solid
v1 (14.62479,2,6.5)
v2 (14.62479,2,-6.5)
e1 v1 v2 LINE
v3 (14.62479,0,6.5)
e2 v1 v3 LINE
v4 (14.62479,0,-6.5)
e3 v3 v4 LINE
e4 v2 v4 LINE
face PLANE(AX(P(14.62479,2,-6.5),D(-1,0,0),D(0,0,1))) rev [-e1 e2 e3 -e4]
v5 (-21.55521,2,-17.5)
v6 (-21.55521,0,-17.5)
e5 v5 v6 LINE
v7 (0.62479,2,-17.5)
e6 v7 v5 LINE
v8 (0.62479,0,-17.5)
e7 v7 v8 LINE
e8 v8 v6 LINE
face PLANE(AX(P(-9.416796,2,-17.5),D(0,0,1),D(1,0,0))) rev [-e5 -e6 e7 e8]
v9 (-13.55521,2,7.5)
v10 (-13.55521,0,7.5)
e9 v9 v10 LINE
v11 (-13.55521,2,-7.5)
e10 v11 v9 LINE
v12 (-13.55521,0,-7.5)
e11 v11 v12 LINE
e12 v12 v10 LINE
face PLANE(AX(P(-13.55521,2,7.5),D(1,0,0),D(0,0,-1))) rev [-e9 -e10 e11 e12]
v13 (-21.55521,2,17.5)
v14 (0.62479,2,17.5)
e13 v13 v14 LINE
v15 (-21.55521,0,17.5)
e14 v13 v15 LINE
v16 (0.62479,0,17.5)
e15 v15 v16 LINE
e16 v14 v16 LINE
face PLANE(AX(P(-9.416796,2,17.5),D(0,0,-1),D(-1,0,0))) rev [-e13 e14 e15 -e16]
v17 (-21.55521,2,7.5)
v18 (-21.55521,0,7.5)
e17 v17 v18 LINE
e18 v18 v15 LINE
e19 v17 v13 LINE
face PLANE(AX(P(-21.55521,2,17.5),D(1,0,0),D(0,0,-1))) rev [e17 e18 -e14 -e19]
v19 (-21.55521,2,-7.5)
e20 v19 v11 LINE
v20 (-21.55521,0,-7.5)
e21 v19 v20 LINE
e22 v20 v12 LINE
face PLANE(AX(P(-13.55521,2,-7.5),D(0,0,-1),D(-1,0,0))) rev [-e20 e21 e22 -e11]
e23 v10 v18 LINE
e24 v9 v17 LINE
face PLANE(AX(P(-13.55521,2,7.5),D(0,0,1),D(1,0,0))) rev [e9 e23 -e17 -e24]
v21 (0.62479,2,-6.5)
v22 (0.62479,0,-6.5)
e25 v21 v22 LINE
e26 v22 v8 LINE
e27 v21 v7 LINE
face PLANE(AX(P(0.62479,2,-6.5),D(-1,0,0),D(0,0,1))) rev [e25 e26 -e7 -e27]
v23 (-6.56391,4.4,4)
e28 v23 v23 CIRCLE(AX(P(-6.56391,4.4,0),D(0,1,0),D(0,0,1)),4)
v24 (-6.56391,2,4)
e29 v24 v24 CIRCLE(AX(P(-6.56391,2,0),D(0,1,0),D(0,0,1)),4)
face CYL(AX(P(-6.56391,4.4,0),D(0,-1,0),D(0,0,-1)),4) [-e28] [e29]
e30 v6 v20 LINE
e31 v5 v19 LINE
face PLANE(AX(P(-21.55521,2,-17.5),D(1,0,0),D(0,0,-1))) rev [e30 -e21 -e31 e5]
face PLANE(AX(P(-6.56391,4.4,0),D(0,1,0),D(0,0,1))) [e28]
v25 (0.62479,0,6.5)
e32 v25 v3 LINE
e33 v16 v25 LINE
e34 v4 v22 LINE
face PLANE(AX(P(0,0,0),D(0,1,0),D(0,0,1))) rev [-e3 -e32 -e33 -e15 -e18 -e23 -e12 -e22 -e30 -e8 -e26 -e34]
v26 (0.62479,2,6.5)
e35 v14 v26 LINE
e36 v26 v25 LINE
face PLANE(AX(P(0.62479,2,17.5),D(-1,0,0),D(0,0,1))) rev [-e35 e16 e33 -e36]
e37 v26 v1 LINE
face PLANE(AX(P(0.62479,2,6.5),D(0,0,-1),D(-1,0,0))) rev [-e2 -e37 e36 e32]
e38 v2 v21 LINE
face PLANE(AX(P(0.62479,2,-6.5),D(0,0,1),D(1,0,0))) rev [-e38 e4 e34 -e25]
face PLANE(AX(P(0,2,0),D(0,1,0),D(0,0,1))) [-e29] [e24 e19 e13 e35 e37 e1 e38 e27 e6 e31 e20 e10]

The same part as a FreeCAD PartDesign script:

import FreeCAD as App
import Part
import Sketcher
from FreeCAD import Vector
Q = App.Units.Quantity

doc = App.newDocument("Part")
body = doc.addObject("PartDesign::Body", "Body")

# Sketch on XZ plane
sketch1 = body.newObject("Sketcher::SketchObject", "Sketch")
sketch1.AttachmentSupport = (doc.getObject("XZ_Plane"), [""])
sketch1.MapMode = "FlatFace"
sketch1.addGeometry([
    Part.LineSegment(Vector(1, -6, 0), Vector(1, -18, 0)),  # 0
    Part.LineSegment(Vector(1, -18, 0), Vector(-22, -18, 0)),  # 1
    Part.LineSegment(Vector(-22, -18, 0), Vector(-22, -8, 0)),  # 2
    Part.LineSegment(Vector(-22, -8, 0), Vector(-14, -8, 0)),  # 3
    Part.LineSegment(Vector(-14, -8, 0), Vector(-14, 8, 0)),  # 4
    Part.LineSegment(Vector(-14, 8, 0), Vector(-22, 8, 0)),  # 5
    Part.LineSegment(Vector(-22, 8, 0), Vector(-22, 18, 0)),  # 6
    Part.LineSegment(Vector(-22, 18, 0), Vector(1, 18, 0)),  # 7
    Part.LineSegment(Vector(1, 18, 0), Vector(1, 6, 0)),  # 8
    Part.LineSegment(Vector(1, 6, 0), Vector(15, 6, 0)),  # 9
    Part.LineSegment(Vector(15, 6, 0), Vector(15, -6, 0)),  # 10
    Part.LineSegment(Vector(15, -6, 0), Vector(1, -6, 0)),  # 11
], False)
sketch1.addConstraint([
    Sketcher.Constraint("Coincident", 0, 2, 1, 1),
    Sketcher.Constraint("Coincident", 1, 2, 2, 1),
    Sketcher.Constraint("Coincident", 2, 2, 3, 1),
    Sketcher.Constraint("Coincident", 3, 2, 4, 1),
    Sketcher.Constraint("Coincident", 4, 2, 5, 1),
    Sketcher.Constraint("Coincident", 5, 2, 6, 1),
    Sketcher.Constraint("Coincident", 6, 2, 7, 1),
    Sketcher.Constraint("Coincident", 7, 2, 8, 1),
    Sketcher.Constraint("Coincident", 8, 2, 9, 1),
    Sketcher.Constraint("Coincident", 9, 2, 10, 1),
    Sketcher.Constraint("Coincident", 10, 2, 11, 1),
    Sketcher.Constraint("Coincident", 11, 2, 0, 1),
    Sketcher.Constraint("Vertical", 0),
    Sketcher.Constraint("Horizontal", 1),
    Sketcher.Constraint("Vertical", 2),
    Sketcher.Constraint("Horizontal", 3),
    Sketcher.Constraint("Vertical", 4),
    Sketcher.Constraint("Horizontal", 5),
    Sketcher.Constraint("Vertical", 6),
    Sketcher.Constraint("Horizontal", 7),
    Sketcher.Constraint("Vertical", 8),
    Sketcher.Constraint("Horizontal", 9),
    Sketcher.Constraint("Vertical", 10),
    Sketcher.Constraint("Horizontal", 11),
    Sketcher.Constraint("Symmetric", 2, 2, 5, 2, -1),
    Sketcher.Constraint("Symmetric", 0, 2, 7, 2, -1),
    Sketcher.Constraint("Equal", 0, 8),
    Sketcher.Constraint("DistanceX", 3, 1, 3, 2, Q("8 mm")),
    Sketcher.Constraint("DistanceX", 9, 1, 9, 2, Q("14 mm")),
    Sketcher.Constraint("DistanceY", 0, 2, 0, 1, Q("11 mm")),
    Sketcher.Constraint("DistanceY", 2, 1, 2, 2, Q("10 mm")),
    Sketcher.Constraint("DistanceY", 4, 1, 4, 2, Q("15 mm")),
    Sketcher.Constraint("DistanceX", 1, 2, 1, 1, Q("22.18 mm")),
    Sketcher.Constraint("DistanceX", -1, 1, 0, 2, Q("0.62479 mm")),
])
pad1 = body.newObject("PartDesign::Pad", "Pad")
pad1.Profile = sketch1
pad1.Length = 2
pad1.Reversed = True

# Sketch on XZ plane
sketch2 = body.newObject("Sketcher::SketchObject", "Sketch001")
sketch2.AttachmentSupport = (doc.getObject("XZ_Plane"), [""])
sketch2.MapMode = "FlatFace"
sketch2.AttachmentOffset = App.Placement(Vector(0, 0, -2), App.Rotation())
sketch2.addGeometry(Part.Circle(Vector(-6.6, 0, 0), Vector(0, 0, 1), 4), False)
sketch2.addConstraint([
    Sketcher.Constraint("PointOnObject", 0, 3, -1),
    Sketcher.Constraint("Diameter", 0, Q("8 mm")),
    Sketcher.Constraint("DistanceX", 0, 3, -1, 1, Q("6.56391 mm")),
])
pad2 = body.newObject("PartDesign::Pad", "Pad001")
pad2.Profile = sketch2
pad2.Length = 2.4
pad2.Reversed = True

doc.recompute()
